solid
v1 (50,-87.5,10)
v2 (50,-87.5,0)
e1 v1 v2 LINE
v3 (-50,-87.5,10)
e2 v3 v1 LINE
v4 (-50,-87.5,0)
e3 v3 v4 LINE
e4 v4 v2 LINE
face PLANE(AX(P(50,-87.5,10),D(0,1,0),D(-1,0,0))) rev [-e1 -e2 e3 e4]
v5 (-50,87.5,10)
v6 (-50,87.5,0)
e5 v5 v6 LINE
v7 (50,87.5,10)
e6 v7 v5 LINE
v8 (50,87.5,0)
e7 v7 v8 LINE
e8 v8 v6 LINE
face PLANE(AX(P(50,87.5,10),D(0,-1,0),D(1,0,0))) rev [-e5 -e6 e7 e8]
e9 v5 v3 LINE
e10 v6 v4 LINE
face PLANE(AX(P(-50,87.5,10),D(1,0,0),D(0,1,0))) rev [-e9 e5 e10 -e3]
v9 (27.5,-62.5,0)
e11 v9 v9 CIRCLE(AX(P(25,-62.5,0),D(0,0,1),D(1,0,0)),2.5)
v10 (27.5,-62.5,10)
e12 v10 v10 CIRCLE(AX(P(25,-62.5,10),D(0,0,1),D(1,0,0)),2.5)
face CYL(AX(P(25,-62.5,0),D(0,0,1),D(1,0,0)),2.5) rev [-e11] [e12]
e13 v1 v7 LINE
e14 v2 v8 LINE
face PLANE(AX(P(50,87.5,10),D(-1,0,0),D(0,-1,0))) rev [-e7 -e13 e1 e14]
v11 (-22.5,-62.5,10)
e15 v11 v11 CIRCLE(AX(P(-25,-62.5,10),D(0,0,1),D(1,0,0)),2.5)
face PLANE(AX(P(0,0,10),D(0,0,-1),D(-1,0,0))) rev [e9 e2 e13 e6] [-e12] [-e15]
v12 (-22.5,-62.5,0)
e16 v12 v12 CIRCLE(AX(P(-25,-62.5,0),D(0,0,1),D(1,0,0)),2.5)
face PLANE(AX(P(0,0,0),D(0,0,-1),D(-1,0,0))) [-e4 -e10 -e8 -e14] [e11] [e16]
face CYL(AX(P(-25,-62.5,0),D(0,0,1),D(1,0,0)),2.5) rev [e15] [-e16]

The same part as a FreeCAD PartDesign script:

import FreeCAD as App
import Part
import Sketcher
Q = App.Units.Quantity


def add_polygon(sketch, points):
    """Adds a closed chain of lines whose ends are joined by coincident constraints."""
    first, n = sketch.GeometryCount, len(points)
    for a, b in zip(points, points[1:] + points[:1]):
        sketch.addGeometry(Part.LineSegment(App.Vector(*a, 0), App.Vector(*b, 0)), False)
    for i in range(n):
        sketch.addConstraint(Sketcher.Constraint("Coincident", first + i, 2, first + (i + 1) % n, 1))

doc = App.newDocument("Part")
body = doc.addObject("PartDesign::Body", "Body")

# Sketch on XY plane
sketch1 = doc.addObject("Sketcher::SketchObject", "Sketch")
body.addObject(sketch1)
sketch1.AttachmentSupport = (doc.XY_Plane, [""])
sketch1.MapMode = "FlatFace"
add_polygon(sketch1, [(-50, 88), (-50, -88), (50, -88), (50, 88)])  # lines 0-3
sketch1.addConstraint(Sketcher.Constraint("Vertical", 0))
sketch1.addConstraint(Sketcher.Constraint("Horizontal", 1))
sketch1.addConstraint(Sketcher.Constraint("Vertical", 2))
sketch1.addConstraint(Sketcher.Constraint("Horizontal", 3))
sketch1.addConstraint(Sketcher.Constraint("Symmetric", 0, 2, 2, 2, -1, 1))
sketch1.addConstraint(Sketcher.Constraint("DistanceX", 1, 1, 1, 2, Q("100 mm")))
sketch1.addConstraint(Sketcher.Constraint("DistanceY", 0, 2, 0, 1, Q("175 mm")))
pad1 = doc.addObject("PartDesign::Pad", "Pad")
body.addObject(pad1)
pad1.Profile = sketch1
pad1.Length = 10

# Sketch on XY plane
sketch2 = doc.addObject("Sketcher::SketchObject", "Sketch001")
body.addObject(sketch2)
sketch2.AttachmentSupport = (doc.XY_Plane, [""])
sketch2.MapMode = "FlatFace"
sketch2.AttachmentOffset = App.Placement(App.Vector(0, 0, 10), App.Rotation())
sketch2.addGeometry(Part.Circle(App.Vector(-25, -62.5, 0), App.Vector(0, 0, 1), 2.5), False)
sketch2.addGeometry(Part.Circle(App.Vector(25, -62.5, 0), App.Vector(0, 0, 1), 2.5), False)
sketch2.addConstraint(Sketcher.Constraint("Equal", 0, 1))
sketch2.addConstraint(Sketcher.Constraint("Symmetric", 0, 3, 1, 3, -2))
sketch2.addConstraint(Sketcher.Constraint("Diameter", 0, Q("5 mm")))
sketch2.addConstraint(Sketcher.Constraint("DistanceX", 0, 3, -1, 1, Q("25 mm")))
sketch2.addConstraint(Sketcher.Constraint("DistanceY", 0, 3, -1, 1, Q("62.5 mm")))
pocket1 = doc.addObject("PartDesign::Pocket", "Pocket")
body.addObject(pocket1)
pocket1.Profile = sketch2
pocket1.Type = "ThroughAll"

doc.recompute()
